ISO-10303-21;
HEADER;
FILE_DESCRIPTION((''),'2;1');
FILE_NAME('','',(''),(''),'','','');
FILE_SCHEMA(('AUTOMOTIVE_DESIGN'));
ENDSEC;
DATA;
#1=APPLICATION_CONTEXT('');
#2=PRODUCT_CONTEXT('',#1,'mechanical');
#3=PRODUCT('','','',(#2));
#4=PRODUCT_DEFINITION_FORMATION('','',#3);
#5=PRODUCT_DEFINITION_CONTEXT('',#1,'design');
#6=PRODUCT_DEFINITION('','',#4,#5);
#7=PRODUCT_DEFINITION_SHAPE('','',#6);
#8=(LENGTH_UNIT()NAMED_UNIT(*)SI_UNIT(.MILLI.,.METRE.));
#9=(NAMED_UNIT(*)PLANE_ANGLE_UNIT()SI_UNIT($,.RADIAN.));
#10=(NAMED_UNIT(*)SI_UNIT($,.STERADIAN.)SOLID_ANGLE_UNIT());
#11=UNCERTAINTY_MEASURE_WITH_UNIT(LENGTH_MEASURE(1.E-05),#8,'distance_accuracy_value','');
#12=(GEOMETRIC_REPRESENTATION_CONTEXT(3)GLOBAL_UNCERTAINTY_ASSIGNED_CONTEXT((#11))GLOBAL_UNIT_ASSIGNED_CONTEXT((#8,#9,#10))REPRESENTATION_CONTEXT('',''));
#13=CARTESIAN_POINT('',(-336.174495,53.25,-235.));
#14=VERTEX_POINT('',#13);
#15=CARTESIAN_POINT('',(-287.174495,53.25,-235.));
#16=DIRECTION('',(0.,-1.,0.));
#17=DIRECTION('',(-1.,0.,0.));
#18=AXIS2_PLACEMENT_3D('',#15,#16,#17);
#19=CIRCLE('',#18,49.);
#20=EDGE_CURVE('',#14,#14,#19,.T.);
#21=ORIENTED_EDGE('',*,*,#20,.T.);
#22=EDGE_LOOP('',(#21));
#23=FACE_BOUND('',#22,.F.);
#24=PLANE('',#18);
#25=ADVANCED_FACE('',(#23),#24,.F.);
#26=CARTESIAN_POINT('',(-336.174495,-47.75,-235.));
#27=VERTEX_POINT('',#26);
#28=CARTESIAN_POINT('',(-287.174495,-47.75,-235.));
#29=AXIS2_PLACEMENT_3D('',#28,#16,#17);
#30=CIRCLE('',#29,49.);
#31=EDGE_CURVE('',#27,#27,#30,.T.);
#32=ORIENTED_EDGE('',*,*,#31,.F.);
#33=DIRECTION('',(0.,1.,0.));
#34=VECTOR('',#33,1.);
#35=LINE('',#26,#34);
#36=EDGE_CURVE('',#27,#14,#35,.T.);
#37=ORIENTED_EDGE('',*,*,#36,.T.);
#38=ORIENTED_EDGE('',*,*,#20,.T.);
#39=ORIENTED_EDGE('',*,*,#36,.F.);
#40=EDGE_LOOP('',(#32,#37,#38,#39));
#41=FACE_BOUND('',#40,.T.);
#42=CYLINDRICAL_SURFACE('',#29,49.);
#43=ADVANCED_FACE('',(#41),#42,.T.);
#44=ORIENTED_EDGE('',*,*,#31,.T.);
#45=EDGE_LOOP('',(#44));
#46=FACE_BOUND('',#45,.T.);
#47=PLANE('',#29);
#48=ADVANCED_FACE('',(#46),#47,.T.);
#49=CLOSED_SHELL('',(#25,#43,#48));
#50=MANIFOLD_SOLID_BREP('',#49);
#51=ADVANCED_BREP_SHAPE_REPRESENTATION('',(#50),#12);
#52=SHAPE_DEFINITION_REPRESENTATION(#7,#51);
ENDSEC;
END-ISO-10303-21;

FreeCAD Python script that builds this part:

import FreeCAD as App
import Part
import Sketcher

V = App.Vector
Q = App.Units.Quantity

doc = App.newDocument("Part")
body = doc.addObject("PartDesign::Body", "Body")

# Sketch on XZ plane
sketch1 = body.newObject("Sketcher::SketchObject", "Sketch")
sketch1.AttachmentSupport = (doc.getObject("XZ_Plane"), [""])
sketch1.MapMode = "FlatFace"
sketch1.AttachmentOffset = App.Placement(V(0, 0, 47.75), App.Rotation())
sketch1.addGeometry(Part.Circle(V(-287, -235, 0), V(0, 0, 1), 49), False)
sketch1.addConstraint([
    Sketcher.Constraint("Diameter", 0, Q("98 mm")),
    Sketcher.Constraint("DistanceY", 0, 3, -1, 1, Q("235 mm")),
    Sketcher.Constraint("DistanceX", 0, 3, -1, 1, Q("287.174495 mm")),
])
pad1 = body.newObject("PartDesign::Pad", "Pad")
pad1.Profile = sketch1
pad1.Length = 101
pad1.Reversed = True

doc.recompute()
